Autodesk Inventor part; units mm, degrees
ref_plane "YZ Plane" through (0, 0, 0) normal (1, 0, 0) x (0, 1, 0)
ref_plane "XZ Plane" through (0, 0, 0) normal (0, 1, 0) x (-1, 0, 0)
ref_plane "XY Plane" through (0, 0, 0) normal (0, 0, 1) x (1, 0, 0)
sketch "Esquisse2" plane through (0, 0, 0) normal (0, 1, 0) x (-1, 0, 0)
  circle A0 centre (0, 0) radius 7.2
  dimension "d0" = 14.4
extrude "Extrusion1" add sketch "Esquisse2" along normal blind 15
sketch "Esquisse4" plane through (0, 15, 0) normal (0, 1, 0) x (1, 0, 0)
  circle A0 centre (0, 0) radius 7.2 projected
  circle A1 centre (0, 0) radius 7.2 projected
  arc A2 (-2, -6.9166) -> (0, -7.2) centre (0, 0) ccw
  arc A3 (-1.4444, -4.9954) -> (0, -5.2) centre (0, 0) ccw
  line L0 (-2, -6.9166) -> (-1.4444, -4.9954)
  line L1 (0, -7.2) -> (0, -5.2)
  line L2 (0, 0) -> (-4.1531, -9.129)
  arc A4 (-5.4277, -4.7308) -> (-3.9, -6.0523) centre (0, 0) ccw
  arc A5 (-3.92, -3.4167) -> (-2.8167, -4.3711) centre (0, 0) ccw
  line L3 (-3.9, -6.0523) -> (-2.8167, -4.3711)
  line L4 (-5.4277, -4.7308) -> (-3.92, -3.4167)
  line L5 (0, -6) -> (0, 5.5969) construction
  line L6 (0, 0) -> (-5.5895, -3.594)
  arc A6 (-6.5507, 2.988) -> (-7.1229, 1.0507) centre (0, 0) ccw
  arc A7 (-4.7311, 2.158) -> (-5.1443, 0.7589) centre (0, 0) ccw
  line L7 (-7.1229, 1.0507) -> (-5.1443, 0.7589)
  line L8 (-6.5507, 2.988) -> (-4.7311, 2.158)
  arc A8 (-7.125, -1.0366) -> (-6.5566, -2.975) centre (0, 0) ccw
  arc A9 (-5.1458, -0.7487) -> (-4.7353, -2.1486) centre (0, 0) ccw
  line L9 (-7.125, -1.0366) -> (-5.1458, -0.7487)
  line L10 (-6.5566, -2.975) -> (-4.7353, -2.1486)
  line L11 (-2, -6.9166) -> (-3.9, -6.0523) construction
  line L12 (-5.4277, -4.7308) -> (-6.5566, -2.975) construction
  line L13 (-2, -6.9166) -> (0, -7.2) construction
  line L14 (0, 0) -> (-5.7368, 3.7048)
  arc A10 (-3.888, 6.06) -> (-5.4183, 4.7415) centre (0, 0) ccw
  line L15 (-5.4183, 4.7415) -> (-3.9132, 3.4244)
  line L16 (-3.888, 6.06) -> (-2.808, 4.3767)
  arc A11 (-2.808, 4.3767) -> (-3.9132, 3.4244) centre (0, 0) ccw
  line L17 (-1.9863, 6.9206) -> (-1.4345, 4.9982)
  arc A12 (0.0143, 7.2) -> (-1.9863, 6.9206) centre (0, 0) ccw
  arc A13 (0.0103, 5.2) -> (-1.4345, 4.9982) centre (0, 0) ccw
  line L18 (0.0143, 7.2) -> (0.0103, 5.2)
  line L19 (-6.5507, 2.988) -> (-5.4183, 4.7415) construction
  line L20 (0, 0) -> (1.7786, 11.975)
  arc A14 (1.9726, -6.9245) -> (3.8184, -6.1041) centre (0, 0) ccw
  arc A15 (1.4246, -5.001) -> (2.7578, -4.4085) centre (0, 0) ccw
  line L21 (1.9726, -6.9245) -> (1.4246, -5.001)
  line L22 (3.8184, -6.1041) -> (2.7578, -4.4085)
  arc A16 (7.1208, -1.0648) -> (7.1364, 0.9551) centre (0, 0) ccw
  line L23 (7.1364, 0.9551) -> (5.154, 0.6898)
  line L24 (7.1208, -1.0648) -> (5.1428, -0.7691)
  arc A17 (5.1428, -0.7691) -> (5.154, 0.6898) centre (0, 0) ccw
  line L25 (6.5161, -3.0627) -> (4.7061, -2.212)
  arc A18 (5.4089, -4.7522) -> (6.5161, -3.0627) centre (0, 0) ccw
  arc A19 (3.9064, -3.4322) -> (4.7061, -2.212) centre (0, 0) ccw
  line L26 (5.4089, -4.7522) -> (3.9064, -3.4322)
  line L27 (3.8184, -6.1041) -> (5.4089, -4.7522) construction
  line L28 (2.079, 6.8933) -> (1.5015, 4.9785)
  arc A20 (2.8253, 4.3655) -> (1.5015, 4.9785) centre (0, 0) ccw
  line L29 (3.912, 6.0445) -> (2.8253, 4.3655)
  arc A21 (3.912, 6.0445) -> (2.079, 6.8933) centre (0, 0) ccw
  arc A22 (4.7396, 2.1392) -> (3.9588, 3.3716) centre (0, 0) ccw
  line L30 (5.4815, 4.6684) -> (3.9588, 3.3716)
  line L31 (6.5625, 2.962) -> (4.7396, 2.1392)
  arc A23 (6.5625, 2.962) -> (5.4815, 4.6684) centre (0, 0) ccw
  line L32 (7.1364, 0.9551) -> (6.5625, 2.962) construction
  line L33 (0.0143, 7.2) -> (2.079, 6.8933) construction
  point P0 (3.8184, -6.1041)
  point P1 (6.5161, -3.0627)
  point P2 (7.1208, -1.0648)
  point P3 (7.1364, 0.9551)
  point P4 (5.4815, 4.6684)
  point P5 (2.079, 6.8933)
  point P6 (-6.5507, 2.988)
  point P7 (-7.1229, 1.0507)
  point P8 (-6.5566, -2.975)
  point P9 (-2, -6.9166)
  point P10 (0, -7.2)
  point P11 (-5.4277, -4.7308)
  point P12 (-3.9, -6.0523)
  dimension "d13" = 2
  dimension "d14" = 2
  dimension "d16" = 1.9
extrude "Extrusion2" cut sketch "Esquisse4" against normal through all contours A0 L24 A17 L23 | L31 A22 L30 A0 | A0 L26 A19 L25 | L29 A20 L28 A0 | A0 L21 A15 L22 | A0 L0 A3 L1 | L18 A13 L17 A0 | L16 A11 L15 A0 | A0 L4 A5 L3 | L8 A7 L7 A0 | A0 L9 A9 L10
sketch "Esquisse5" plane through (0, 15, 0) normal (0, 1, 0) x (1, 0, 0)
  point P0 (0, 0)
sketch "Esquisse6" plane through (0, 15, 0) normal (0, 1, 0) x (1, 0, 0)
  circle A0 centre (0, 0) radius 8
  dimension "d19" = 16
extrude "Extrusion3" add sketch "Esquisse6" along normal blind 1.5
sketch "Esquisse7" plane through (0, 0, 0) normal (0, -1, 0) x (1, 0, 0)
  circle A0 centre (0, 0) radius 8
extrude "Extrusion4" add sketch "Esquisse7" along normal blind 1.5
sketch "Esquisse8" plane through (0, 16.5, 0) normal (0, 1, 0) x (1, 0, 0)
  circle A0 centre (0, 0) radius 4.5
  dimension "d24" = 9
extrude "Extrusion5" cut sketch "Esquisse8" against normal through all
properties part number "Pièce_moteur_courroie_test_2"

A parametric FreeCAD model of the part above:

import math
import FreeCAD as App
import Part
import Sketcher

doc = App.newDocument("Part")
body = doc.addObject("PartDesign::Body", "Body")

# Sketch on XZ plane
sketch1 = doc.addObject("Sketcher::SketchObject", "Sketch")
body.addObject(sketch1)
sketch1.AttachmentSupport = (doc.XZ_Plane, [""])
sketch1.MapMode = "FlatFace"
sketch1.addGeometry(Part.Circle(App.Vector(0, 0, 0), App.Vector(0, 0, 1), 7.2), False)
sketch1.addConstraint(Sketcher.Constraint("Coincident", 0, 3, -1, 1))
sketch1.addConstraint(Sketcher.Constraint("Diameter", 0, 14.4))
pad1 = doc.addObject("PartDesign::Pad", "Pad")
body.addObject(pad1)
pad1.Profile = sketch1
pad1.Length = 15
pad1.Reversed = True

# Sketch on XZ plane
sketch2 = doc.addObject("Sketcher::SketchObject", "Sketch001")
body.addObject(sketch2)
sketch2.AttachmentSupport = (doc.XZ_Plane, [""])
sketch2.MapMode = "FlatFace"
sketch2.AttachmentOffset = App.Placement(App.Vector(0, 0, -15), App.Rotation())
sketch2.addGeometry(Part.ArcOfCircle(Part.Circle(App.Vector(0, 0, 0), App.Vector(0, 0, 1), 7.2), math.radians(-7.622882), math.radians(8.504638)), False)
sketch2.addGeometry(Part.LineSegment(App.Vector(7.1364, -0.9551, 0), App.Vector(5.154, -0.6898, 0)), False)
sketch2.addGeometry(Part.ArcOfCircle(Part.Circle(App.Vector(0.001781, 0.000139, 0), App.Vector(0, 0, 1), 5.198209), math.radians(-7.627166), math.radians(8.50687)), False)
sketch2.addGeometry(Part.LineSegment(App.Vector(5.1428, 0.7691, 0), App.Vector(7.1208, 1.0648, 0)), False)
sketch2.addGeometry(Part.LineSegment(App.Vector(4.7396, -2.1392, 0), App.Vector(6.5625, -2.962, 0)), False)
sketch2.addGeometry(Part.ArcOfCircle(Part.Circle(App.Vector(0, 0, 0), App.Vector(0, 0, 1), 7.2), math.radians(-40.419864), math.radians(-24.29215)), False)
sketch2.addGeometry(Part.LineSegment(App.Vector(5.4815, -4.6684, 0), App.Vector(3.9588, -3.3716, 0)), False)
sketch2.addGeometry(Part.ArcOfCircle(Part.Circle(App.Vector(0, 0, 0), App.Vector(0, 0, 1), 5.199951), math.radians(-40.420114), math.radians(-24.291851)), False)
sketch2.addGeometry(Part.ArcOfCircle(Part.Circle(App.Vector(0, 0, 0), App.Vector(0, 0, 1), 7.2), math.radians(25.174482), math.radians(41.302184)), False)
sketch2.addGeometry(Part.LineSegment(App.Vector(6.5161, 3.0627, 0), App.Vector(4.7061, 2.212, 0)), False)
sketch2.addGeometry(Part.ArcOfCircle(Part.Circle(App.Vector(-0.00141, -0.001073, 0), App.Vector(0, 0, 1), 5.201763), math.radians(25.178941), math.radians(41.301473)), False)
sketch2.addGeometry(Part.LineSegment(App.Vector(3.9064, 3.4322, 0), App.Vector(5.4089, 4.7522, 0)), False)
sketch2.addGeometry(Part.LineSegment(App.Vector(2.8253, -4.3655, 0), App.Vector(3.912, -6.0445, 0)), False)
sketch2.addGeometry(Part.ArcOfCircle(Part.Circle(App.Vector(0, 0, 0), App.Vector(0, 0, 1), 7.2), math.radians(-73.216836), math.radians(-57.089058)), False)
sketch2.addGeometry(Part.LineSegment(App.Vector(2.079, -6.8933, 0), App.Vector(1.5015, -4.9785, 0)), False)
sketch2.addGeometry(Part.ArcOfCircle(Part.Circle(App.Vector(0, 0, 0), App.Vector(0, 0, 1), 5.200035), math.radians(-73.216854), math.radians(-57.089533)), False)
sketch2.addGeometry(Part.ArcOfCircle(Part.Circle(App.Vector(0, 0, 0), App.Vector(0, 0, 1), 7.2), math.radians(57.972095), math.radians(74.099202)), False)
sketch2.addGeometry(Part.LineSegment(App.Vector(3.8184, 6.1041, 0), App.Vector(2.7578, 4.4085, 0)), False)
sketch2.addGeometry(Part.ArcOfCircle(Part.Circle(App.Vector(-0.001408, -0.003884, 0), App.Vector(0, 0, 1), 5.204072), math.radians(57.980906), math.radians(74.096509)), False)
sketch2.addGeometry(Part.LineSegment(App.Vector(1.4246, 5.001, 0), App.Vector(1.9726, 6.9245, 0)), False)
sketch2.addGeometry(Part.ArcOfCircle(Part.Circle(App.Vector(0, 0, 0), App.Vector(0, 0, 1), 7.2), math.radians(90), math.radians(106.127723)), False)
sketch2.addGeometry(Part.LineSegment(App.Vector(0, 7.2, 0), App.Vector(0, 5.2, 0)), False)
sketch2.addGeometry(Part.ArcOfCircle(Part.Circle(App.Vector(-0.000319, 0.001489, 0), App.Vector(0, 0, 1), 5.198511), math.radians(89.996483), math.radians(106.128195)), False)
sketch2.addGeometry(Part.LineSegment(App.Vector(-1.4444, 4.9954, 0), App.Vector(-2, 6.9166, 0)), False)
sketch2.addGeometry(Part.LineSegment(App.Vector(0.0103, -5.2, 0), App.Vector(0.0143, -7.2, 0)), False)
sketch2.addGeometry(Part.ArcOfCircle(Part.Circle(App.Vector(0, 0, 0), App.Vector(0, 0, 1), 7.2), math.radians(-106.014151), math.radians(-89.886204)), False)
sketch2.addGeometry(Part.LineSegment(App.Vector(-1.9863, -6.9206, 0), App.Vector(-1.4345, -4.9982, 0)), False)
sketch2.addGeometry(Part.ArcOfCircle(Part.Circle(App.Vector(-0.000104, -0.00152, 0), App.Vector(0, 0, 1), 5.198491), math.radians(-106.017173), math.radians(-89.88533)), False)
sketch2.addGeometry(Part.LineSegment(App.Vector(-2.808, -4.3767, 0), App.Vector(-3.888, -6.06, 0)), False)
sketch2.addGeometry(Part.ArcOfCircle(Part.Circle(App.Vector(0, 0, 0), App.Vector(0, 0, 1), 7.2), math.radians(-138.811155), math.radians(-122.683588)), False)
sketch2.addGeometry(Part.LineSegment(App.Vector(-5.4183, -4.7415, 0), App.Vector(-3.9132, -3.4244, 0)), False)
sketch2.addGeometry(Part.ArcOfCircle(Part.Circle(App.Vector(-0.002089, -0.002801, 0), App.Vector(0, 0, 1), 5.19655), math.radians(-138.819245), math.radians(-122.680681)), False)
sketch2.addGeometry(Part.ArcOfCircle(Part.Circle(App.Vector(0, 0, 0), App.Vector(0, 0, 1), 7.2), math.radians(122.797049), math.radians(138.924493)), False)
sketch2.addGeometry(Part.LineSegment(App.Vector(-3.9, 6.0523, 0), App.Vector(-2.8167, 4.3711, 0)), False)
sketch2.addGeometry(Part.ArcOfCircle(Part.Circle(App.Vector(0, 0, 0), App.Vector(0, 0, 1), 5.200035), math.radians(122.797391), math.radians(138.924361)), False)
sketch2.addGeometry(Part.LineSegment(App.Vector(-3.92, 3.4167, 0), App.Vector(-5.4277, 4.7308, 0)), False)
sketch2.addGeometry(Part.LineSegment(App.Vector(-4.7311, -2.158, 0), App.Vector(-6.5507, -2.988, 0)), False)
sketch2.addGeometry(Part.ArcOfCircle(Part.Circle(App.Vector(0, 0, 0), App.Vector(0, 0, 1), 7.2), math.radians(-171.608804), math.radians(-155.480637)), False)
sketch2.addGeometry(Part.LineSegment(App.Vector(-7.1229, -1.0507, 0), App.Vector(-5.1443, -0.7589, 0)), False)
sketch2.addGeometry(Part.ArcOfCircle(Part.Circle(App.Vector(-0.002371, -0.000886, 0), App.Vector(0, 0, 1), 5.197501), math.radians(-171.613958), math.radians(-155.478853)), False)
sketch2.addGeometry(Part.ArcOfCircle(Part.Circle(App.Vector(0, 0, 0), App.Vector(0, 0, 1), 7.2), math.radians(155.594243), math.radians(171.722246)), False)
sketch2.addGeometry(Part.LineSegment(App.Vector(-6.5566, 2.975, 0), App.Vector(-4.7353, 2.1486, 0)), False)
sketch2.addGeometry(Part.ArcOfCircle(Part.Circle(App.Vector(-0.001244, 0.000271, 0), App.Vector(0, 0, 1), 5.198711), math.radians(155.591313), math.radians(171.722695)), False)
sketch2.addGeometry(Part.LineSegment(App.Vector(-5.1458, 0.7487, 0), App.Vector(-7.125, 1.0366, 0)), False)
sketch2.addConstraint(Sketcher.Constraint("Coincident", 0, 1, 1, 1))
sketch2.addConstraint(Sketcher.Constraint("Coincident", 1, 2, 2, 1))
sketch2.addConstraint(Sketcher.Constraint("Coincident", 2, 2, 3, 1))
sketch2.addConstraint(Sketcher.Constraint("Coincident", 3, 2, 0, 2))
sketch2.addConstraint(Sketcher.Constraint("Coincident", 4, 2, 5, 2))
sketch2.addConstraint(Sketcher.Constraint("Coincident", 5, 1, 6, 1))
sketch2.addConstraint(Sketcher.Constraint("Coincident", 6, 2, 7, 1))
sketch2.addConstraint(Sketcher.Constraint("Coincident", 7, 2, 4, 1))
sketch2.addConstraint(Sketcher.Constraint("Coincident", 8, 1, 9, 1))
sketch2.addConstraint(Sketcher.Constraint("Coincident", 9, 2, 10, 1))
sketch2.addConstraint(Sketcher.Constraint("Coincident", 10, 2, 11, 1))
sketch2.addConstraint(Sketcher.Constraint("Coincident", 11, 2, 8, 2))
sketch2.addConstraint(Sketcher.Constraint("Coincident", 12, 2, 13, 2))
sketch2.addConstraint(Sketcher.Constraint("Coincident", 13, 1, 14, 1))
sketch2.addConstraint(Sketcher.Constraint("Coincident", 14, 2, 15, 1))
sketch2.addConstraint(Sketcher.Constraint("Coincident", 15, 2, 12, 1))
sketch2.addConstraint(Sketcher.Constraint("Coincident", 16, 1, 17, 1))
sketch2.addConstraint(Sketcher.Constraint("Coincident", 17, 2, 18, 1))
sketch2.addConstraint(Sketcher.Constraint("Coincident", 18, 2, 19, 1))
sketch2.addConstraint(Sketcher.Constraint("Coincident", 19, 2, 16, 2))
sketch2.addConstraint(Sketcher.Constraint("Coincident", 20, 1, 21, 1))
sketch2.addConstraint(Sketcher.Constraint("Coincident", 21, 2, 22, 1))
sketch2.addConstraint(Sketcher.Constraint("Coincident", 22, 2, 23, 1))
sketch2.addConstraint(Sketcher.Constraint("Coincident", 23, 2, 20, 2))
sketch2.addConstraint(Sketcher.Constraint("Coincident", 24, 2, 25, 2))
sketch2.addConstraint(Sketcher.Constraint("Coincident", 25, 1, 26, 1))
sketch2.addConstraint(Sketcher.Constraint("Coincident", 26, 2, 27, 1))
sketch2.addConstraint(Sketcher.Constraint("Coincident", 27, 2, 24, 1))
sketch2.addConstraint(Sketcher.Constraint("Coincident", 28, 2, 29, 2))
sketch2.addConstraint(Sketcher.Constraint("Coincident", 29, 1, 30, 1))
sketch2.addConstraint(Sketcher.Constraint("Coincident", 30, 2, 31, 1))
sketch2.addConstraint(Sketcher.Constraint("Coincident", 31, 2, 28, 1))
sketch2.addConstraint(Sketcher.Constraint("Coincident", 32, 1, 33, 1))
sketch2.addConstraint(Sketcher.Constraint("Coincident", 33, 2, 34, 1))
sketch2.addConstraint(Sketcher.Constraint("Coincident", 34, 2, 35, 1))
sketch2.addConstraint(Sketcher.Constraint("Coincident", 35, 2, 32, 2))
sketch2.addConstraint(Sketcher.Constraint("Coincident", 36, 2, 37, 2))
sketch2.addConstraint(Sketcher.Constraint("Coincident", 37, 1, 38, 1))
sketch2.addConstraint(Sketcher.Constraint("Coincident", 38, 2, 39, 1))
sketch2.addConstraint(Sketcher.Constraint("Coincident", 39, 2, 36, 1))
sketch2.addConstraint(Sketcher.Constraint("Coincident", 40, 1, 41, 1))
sketch2.addConstraint(Sketcher.Constraint("Coincident", 41, 2, 42, 1))
sketch2.addConstraint(Sketcher.Constraint("Coincident", 42, 2, 43, 1))
sketch2.addConstraint(Sketcher.Constraint("Coincident", 43, 2, 40, 2))
sketch2.addConstraint(Sketcher.Constraint("Vertical", 21))
sketch2.addConstraint(Sketcher.Constraint("Coincident", 0, 3, -1, 1))
sketch2.addConstraint(Sketcher.Constraint("Coincident", 5, 3, -1, 1))
sketch2.addConstraint(Sketcher.Constraint("Coincident", 7, 3, -1, 1))
sketch2.addConstraint(Sketcher.Constraint("Coincident", 8, 3, -1, 1))
sketch2.addConstraint(Sketcher.Constraint("Coincident", 13, 3, -1, 1))
sketch2.addConstraint(Sketcher.Constraint("Coincident", 15, 3, -1, 1))
sketch2.addConstraint(Sketcher.Constraint("Coincident", 16, 3, -1, 1))
sketch2.addConstraint(Sketcher.Constraint("Coincident", 20, 3, -1, 1))
sketch2.addConstraint(Sketcher.Constraint("Coincident", 25, 3, -1, 1))
sketch2.addConstraint(Sketcher.Constraint("Coincident", 29, 3, -1, 1))
sketch2.addConstraint(Sketcher.Constraint("Coincident", 32, 3, -1, 1))
sketch2.addConstraint(Sketcher.Constraint("Coincident", 34, 3, -1, 1))
sketch2.addConstraint(Sketcher.Constraint("Coincident", 37, 3, -1, 1))
sketch2.addConstraint(Sketcher.Constraint("Coincident", 40, 3, -1, 1))
sketch2.addConstraint(Sketcher.Constraint("PointOnObject", 2, 3, -1))
sketch2.addConstraint(Sketcher.Constraint("PointOnObject", 27, 3, -2))
sketch2.addConstraint(Sketcher.Constraint("PointOnObject", 20, 1, -2))
sketch2.addConstraint(Sketcher.Constraint("DistanceY", 21, 2, 21, 1, 2.0))
sketch2.addConstraint(Sketcher.Constraint("Distance", 1, 2.0))
sketch2.addConstraint(Sketcher.Constraint("Distance", 4, 2.0))
sketch2.addConstraint(Sketcher.Constraint("Distance", 9, 2.0))
sketch2.addConstraint(Sketcher.Constraint("Distance", 11, 2.0))
sketch2.addConstraint(Sketcher.Constraint("Distance", 12, 2.0))
sketch2.addConstraint(Sketcher.Constraint("Distance", 17, 2.0))
sketch2.addConstraint(Sketcher.Constraint("Distance", 19, 2.0))
sketch2.addConstraint(Sketcher.Constraint("Distance", 23, 2.0))
sketch2.addConstraint(Sketcher.Constraint("Distance", 24, 2.0))
sketch2.addConstraint(Sketcher.Constraint("Distance", 26, 2.0))
sketch2.addConstraint(Sketcher.Constraint("Distance", 28, 2.0))
sketch2.addConstraint(Sketcher.Constraint("Distance", 30, 2.0))
sketch2.addConstraint(Sketcher.Constraint("Distance", 33, 2.0))
sketch2.addConstraint(Sketcher.Constraint("Distance", 36, 2.0))
sketch2.addConstraint(Sketcher.Constraint("Distance", 38, 2.0))
sketch2.addConstraint(Sketcher.Constraint("Distance", 41, 2.0))
sketch2.addConstraint(Sketcher.Constraint("Distance", 43, 2.0))
sketch2.addConstraint(Sketcher.Constraint("DistanceX", 23, 2, -1, 1, 2.0))
sketch2.addConstraint(Sketcher.Constraint("Radius", 0, 7.2))
sketch2.addConstraint(Sketcher.Constraint("Radius", 5, 7.2))
sketch2.addConstraint(Sketcher.Constraint("Radius", 8, 7.2))
sketch2.addConstraint(Sketcher.Constraint("Radius", 13, 7.2))
sketch2.addConstraint(Sketcher.Constraint("Radius", 16, 7.2))
sketch2.addConstraint(Sketcher.Constraint("Radius", 20, 7.2))
sketch2.addConstraint(Sketcher.Constraint("Radius", 25, 7.2))
sketch2.addConstraint(Sketcher.Constraint("Radius", 29, 7.2))
sketch2.addConstraint(Sketcher.Constraint("Radius", 32, 7.2))
sketch2.addConstraint(Sketcher.Constraint("Radius", 37, 7.2))
sketch2.addConstraint(Sketcher.Constraint("Radius", 40, 7.2))
sketch2.addConstraint(Sketcher.Constraint("Radius", 18, 5.204))
sketch2.addConstraint(Sketcher.Constraint("DistanceX", 32, 1, -1, 1, 3.9))
sketch2.addConstraint(Sketcher.Constraint("Radius", 2, 5.1982))
sketch2.addConstraint(Sketcher.Constraint("Radius", 10, 5.2018))
sketch2.addConstraint(Sketcher.Constraint("Radius", 22, 5.1985))
sketch2.addConstraint(Sketcher.Constraint("Radius", 31, 5.1965))
sketch2.addConstraint(Sketcher.Constraint("Radius", 39, 5.1975))
sketch2.addConstraint(Sketcher.Constraint("Radius", 42, 5.1987))
sketch2.addConstraint(Sketcher.Constraint("DistanceY", 28, 2, -1, 1, 6.06))
sketch2.addConstraint(Sketcher.Constraint("DistanceX", 34, 2, -1, 1, 3.92))
sketch2.addConstraint(Sketcher.Constraint("DistanceY", 0, 1, -1, 1, 0.955))
sketch2.addConstraint(Sketcher.Constraint("DistanceX", -1, 1, 1, 2, 5.154))
sketch2.addConstraint(Sketcher.Constraint("DistanceY", -1, 1, 2, 2, 0.769))
sketch2.addConstraint(Sketcher.Constraint("DistanceY", 4, 2, -1, 1, 2.962))
sketch2.addConstraint(Sketcher.Constraint("DistanceX", -1, 1, 8, 1, 6.516))
sketch2.addConstraint(Sketcher.Constraint("DistanceX", -1, 1, 9, 2, 4.706))
sketch2.addConstraint(Sketcher.Constraint("DistanceX", -1, 1, 11, 2, 5.409))
sketch2.addConstraint(Sketcher.Constraint("DistanceX", -1, 1, 12, 2, 3.912))
sketch2.addConstraint(Sketcher.Constraint("DistanceX", -1, 1, 13, 1, 2.079))
sketch2.addConstraint(Sketcher.Constraint("DistanceY", -1, 1, 16, 1, 6.104))
sketch2.addConstraint(Sketcher.Constraint("DistanceY", -1, 1, 18, 2, 5.001))
sketch2.addConstraint(Sketcher.Constraint("DistanceX", 31, 2, -1, 1, 2.808))
sketch2.addConstraint(Sketcher.Constraint("DistanceY", -1, 1, 33, 2, 4.371))
sketch2.addConstraint(Sketcher.Constraint("DistanceY", 36, 2, -1, 1, 2.988))
sketch2.addConstraint(Sketcher.Constraint("DistanceX", 37, 1, -1, 1, 7.123))
sketch2.addConstraint(Sketcher.Constraint("DistanceY", 38, 2, -1, 1, 0.759))
sketch2.addConstraint(Sketcher.Constraint("DistanceX", 39, 2, -1, 1, 4.731))
sketch2.addConstraint(Sketcher.Constraint("DistanceY", -1, 1, 40, 1, 2.975))
sketch2.addConstraint(Sketcher.Constraint("DistanceX", 43, 2, -1, 1, 7.125))
sketch2.addConstraint(Sketcher.Constraint("DistanceX", -1, 1, 3, 2, 7.1208))
sketch2.addConstraint(Sketcher.Constraint("DistanceX", -1, 1, 5, 1, 5.4815))
sketch2.addConstraint(Sketcher.Constraint("DistanceX", -1, 1, 6, 2, 3.9588))
sketch2.addConstraint(Sketcher.Constraint("DistanceX", -1, 1, 7, 2, 4.7396))
sketch2.addConstraint(Sketcher.Constraint("DistanceX", -1, 1, 10, 2, 3.9064))
sketch2.addConstraint(Sketcher.Constraint("DistanceX", -1, 1, 14, 2, 1.5015))
sketch2.addConstraint(Sketcher.Constraint("DistanceX", -1, 1, 15, 2, 2.8253))
sketch2.addConstraint(Sketcher.Constraint("DistanceX", -1, 1, 17, 2, 2.7578))
sketch2.addConstraint(Sketcher.Constraint("DistanceX", -1, 1, 19, 2, 1.9726))
sketch2.addConstraint(Sketcher.Constraint("DistanceX", 22, 2, -1, 1, 1.4444))
sketch2.addConstraint(Sketcher.Constraint("DistanceX", -1, 1, 24, 2, 0.0143))
sketch2.addConstraint(Sketcher.Constraint("DistanceX", 25, 1, -1, 1, 1.9863))
sketch2.addConstraint(Sketcher.Constraint("DistanceX", 26, 2, -1, 1, 1.4345))
sketch2.addConstraint(Sketcher.Constraint("DistanceX", -1, 1, 27, 2, 0.0103))
sketch2.addConstraint(Sketcher.Constraint("DistanceX", 29, 1, -1, 1, 5.4183))
sketch2.addConstraint(Sketcher.Constraint("DistanceX", 30, 2, -1, 1, 3.9132))
sketch2.addConstraint(Sketcher.Constraint("DistanceX", 35, 2, -1, 1, 5.4277))
sketch2.addConstraint(Sketcher.Constraint("DistanceX", 41, 2, -1, 1, 4.7353))
sketch2.addConstraint(Sketcher.Constraint("DistanceX", 42, 2, -1, 1, 5.1458))
pocket1 = doc.addObject("PartDesign::Pocket", "Pocket")
body.addObject(pocket1)
pocket1.Profile = sketch2
pocket1.Type = "ThroughAll"
pocket1.Reversed = True

# Sketch on XZ plane
sketch3 = doc.addObject("Sketcher::SketchObject", "Sketch002")
body.addObject(sketch3)
sketch3.AttachmentSupport = (doc.XZ_Plane, [""])
sketch3.MapMode = "FlatFace"
sketch3.AttachmentOffset = App.Placement(App.Vector(0, 0, -15), App.Rotation())
sketch3.addGeometry(Part.Circle(App.Vector(0, 0, 0), App.Vector(0, 0, 1), 8), False)
sketch3.addConstraint(Sketcher.Constraint("Coincident", 0, 3, -1, 1))
sketch3.addConstraint(Sketcher.Constraint("Diameter", 0, 16.0))
pad2 = doc.addObject("PartDesign::Pad", "Pad001")
body.addObject(pad2)
pad2.Profile = sketch3
pad2.Length = 1.5
pad2.Reversed = True

# Sketch on XZ plane
sketch4 = doc.addObject("Sketcher::SketchObject", "Sketch003")
body.addObject(sketch4)
sketch4.AttachmentSupport = (doc.XZ_Plane, [""])
sketch4.MapMode = "FlatFace"
sketch4.addGeometry(Part.Circle(App.Vector(0, 0, 0), App.Vector(0, 0, 1), 8), False)
sketch4.addConstraint(Sketcher.Constraint("Coincident", 0, 3, -1, 1))
sketch4.addConstraint(Sketcher.Constraint("Diameter", 0, 16.0))
pad3 = doc.addObject("PartDesign::Pad", "Pad002")
body.addObject(pad3)
pad3.Profile = sketch4
pad3.Length = 1.5

# Sketch on XZ plane
sketch5 = doc.addObject("Sketcher::SketchObject", "Sketch004")
body.addObject(sketch5)
sketch5.AttachmentSupport = (doc.XZ_Plane, [""])
sketch5.MapMode = "FlatFace"
sketch5.AttachmentOffset = App.Placement(App.Vector(0, 0, -16.5), App.Rotation())
sketch5.addGeometry(Part.Circle(App.Vector(0, 0, 0), App.Vector(0, 0, 1), 4.5), False)
sketch5.addConstraint(Sketcher.Constraint("Coincident", 0, 3, -1, 1))
sketch5.addConstraint(Sketcher.Constraint("Diameter", 0, 9.0))
pocket2 = doc.addObject("PartDesign::Pocket", "Pocket001")
body.addObject(pocket2)
pocket2.Profile = sketch5
pocket2.Type = "ThroughAll"
pocket2.Reversed = True

doc.recompute()
